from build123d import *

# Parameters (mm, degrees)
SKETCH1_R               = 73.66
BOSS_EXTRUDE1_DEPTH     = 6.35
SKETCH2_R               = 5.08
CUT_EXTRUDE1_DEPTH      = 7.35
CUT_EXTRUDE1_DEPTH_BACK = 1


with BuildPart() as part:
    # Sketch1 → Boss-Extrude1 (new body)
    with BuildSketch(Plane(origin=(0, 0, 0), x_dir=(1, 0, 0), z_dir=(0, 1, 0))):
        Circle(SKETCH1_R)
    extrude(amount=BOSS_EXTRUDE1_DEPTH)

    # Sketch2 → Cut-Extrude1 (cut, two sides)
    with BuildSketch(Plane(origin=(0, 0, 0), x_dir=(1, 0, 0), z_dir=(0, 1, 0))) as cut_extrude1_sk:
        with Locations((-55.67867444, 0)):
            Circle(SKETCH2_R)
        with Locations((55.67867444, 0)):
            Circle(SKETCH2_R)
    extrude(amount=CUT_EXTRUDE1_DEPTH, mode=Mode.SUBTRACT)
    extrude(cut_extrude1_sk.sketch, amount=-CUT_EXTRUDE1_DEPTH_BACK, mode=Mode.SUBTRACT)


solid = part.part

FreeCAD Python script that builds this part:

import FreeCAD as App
import Part
import Sketcher
Q = App.Units.Quantity

doc = App.newDocument("Part")
body = doc.addObject("PartDesign::Body", "Body")

# Sketch on XZ plane
sketch1 = doc.addObject("Sketcher::SketchObject", "Sketch")
body.addObject(sketch1)
sketch1.AttachmentSupport = (doc.XZ_Plane, [""])
sketch1.MapMode = "FlatFace"
sketch1.addGeometry(Part.Circle(App.Vector(0, 0, 0), App.Vector(0, 0, 1), 74), False)
sketch1.addConstraint(Sketcher.Constraint("Coincident", 0, 3, -1, 1))
sketch1.addConstraint(Sketcher.Constraint("Diameter", 0, Q("5.8 in")))
pad1 = doc.addObject("PartDesign::Pad", "Pad")
body.addObject(pad1)
pad1.Profile = sketch1
pad1.Length = Q("0.25 in")
pad1.Reversed = True

# Sketch on XZ plane
sketch2 = doc.addObject("Sketcher::SketchObject", "Sketch001")
body.addObject(sketch2)
sketch2.AttachmentSupport = (doc.XZ_Plane, [""])
sketch2.MapMode = "FlatFace"
sketch2.addGeometry(Part.Circle(App.Vector(-56, 0, 0), App.Vector(0, 0, 1), 5), False)
sketch2.addGeometry(Part.Circle(App.Vector(56, 0, 0), App.Vector(0, 0, 1), 5), False)
sketch2.addConstraint(Sketcher.Constraint("Equal", 0, 1))
sketch2.addConstraint(Sketcher.Constraint("Symmetric", 0, 3, 1, 3, -1, 1))
sketch2.addConstraint(Sketcher.Constraint("PointOnObject", 0, 3, -1))
sketch2.addConstraint(Sketcher.Constraint("Diameter", 0, Q("0.4 in")))
sketch2.addConstraint(Sketcher.Constraint("DistanceX", 0, 3, 1, 3, 111.357349))
pocket1 = doc.addObject("PartDesign::Pocket", "Pocket")
body.addObject(pocket1)
pocket1.Profile = sketch2
pocket1.Type = "ThroughAll"
pocket1.Midplane = True

doc.recompute()
